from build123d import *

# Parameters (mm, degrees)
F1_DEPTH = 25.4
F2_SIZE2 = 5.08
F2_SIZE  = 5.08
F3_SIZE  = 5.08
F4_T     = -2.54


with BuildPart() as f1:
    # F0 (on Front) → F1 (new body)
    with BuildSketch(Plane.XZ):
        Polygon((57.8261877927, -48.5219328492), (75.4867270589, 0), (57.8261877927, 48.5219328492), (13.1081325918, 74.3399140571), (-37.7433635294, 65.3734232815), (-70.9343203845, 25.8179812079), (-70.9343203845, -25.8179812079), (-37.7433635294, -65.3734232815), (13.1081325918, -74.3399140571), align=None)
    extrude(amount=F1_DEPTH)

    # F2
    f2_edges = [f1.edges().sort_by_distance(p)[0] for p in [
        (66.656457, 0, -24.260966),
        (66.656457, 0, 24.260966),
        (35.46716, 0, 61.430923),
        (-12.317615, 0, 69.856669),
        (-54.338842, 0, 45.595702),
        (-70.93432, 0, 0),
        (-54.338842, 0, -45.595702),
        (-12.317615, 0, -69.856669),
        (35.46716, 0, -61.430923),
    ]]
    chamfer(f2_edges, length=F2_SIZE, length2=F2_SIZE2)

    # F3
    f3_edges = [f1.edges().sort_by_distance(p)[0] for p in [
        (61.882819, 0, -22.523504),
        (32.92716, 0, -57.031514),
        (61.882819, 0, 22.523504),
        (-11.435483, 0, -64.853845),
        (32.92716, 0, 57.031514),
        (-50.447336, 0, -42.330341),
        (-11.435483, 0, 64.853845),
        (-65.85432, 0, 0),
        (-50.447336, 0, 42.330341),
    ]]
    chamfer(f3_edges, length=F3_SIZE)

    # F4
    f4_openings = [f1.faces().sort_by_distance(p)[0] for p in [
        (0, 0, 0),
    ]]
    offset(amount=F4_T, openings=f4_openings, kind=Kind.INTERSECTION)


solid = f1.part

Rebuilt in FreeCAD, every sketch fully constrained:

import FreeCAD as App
import Part
import Sketcher
from FreeCAD import Vector
Q = App.Units.Quantity


def edges_at(feature, points):
    """Names of the edges that pass closest to the given points."""
    edges = feature.Shape.Edges
    near = lambda p: min(range(len(edges)), key=lambda i: edges[i].distToShape(Part.Vertex(*p))[0])
    return sorted({f"Edge{near(p) + 1}" for p in points})


def faces_at(feature, points):
    """Names of the faces that lie closest to the given points."""
    faces = feature.Shape.Faces
    near = lambda p: min(range(len(faces)), key=lambda i: faces[i].distToShape(Part.Vertex(*p))[0])
    return sorted({f"Face{near(p) + 1}" for p in points})

doc = App.newDocument("Part")
params = doc.addObject("Spreadsheet::Sheet", "Params")
for row, (alias, value) in enumerate([
    ("pad1_length", "1 in"),
    ("chamfer_size", "0.2 in"),
    ("chamfer_size2", "0.2 in"),
    ("chamfer2_size", "0.2 in"),
    ("thickness_wall", "0.1 in"),
], start=1):
    params.set(f"A{row}", alias)
    params.set(f"B{row}", "=" + value)
    params.setAlias(f"B{row}", alias)

body = doc.addObject("PartDesign::Body", "Body")

# Sketch on XZ plane
sketch1 = body.newObject("Sketcher::SketchObject", "Sketch")
sketch1.AttachmentSupport = (doc.getObject("XZ_Plane"), [""])
sketch1.MapMode = "FlatFace"
sketch1.addGeometry([
    Part.LineSegment(Vector(58, -49, 0), Vector(75, 0, 0)),  # 0
    Part.LineSegment(Vector(75, 0, 0), Vector(58, 49, 0)),  # 1
    Part.LineSegment(Vector(58, 49, 0), Vector(13, 74, 0)),  # 2
    Part.LineSegment(Vector(13, 74, 0), Vector(-38, 65, 0)),  # 3
    Part.LineSegment(Vector(-38, 65, 0), Vector(-71, 26, 0)),  # 4
    Part.LineSegment(Vector(-71, 26, 0), Vector(-71, -26, 0)),  # 5
    Part.LineSegment(Vector(-71, -26, 0), Vector(-38, -65, 0)),  # 6
    Part.LineSegment(Vector(-38, -65, 0), Vector(13, -74, 0)),  # 7
    Part.LineSegment(Vector(13, -74, 0), Vector(58, -49, 0)),  # 8
], False)
sketch1.addConstraint([
    Sketcher.Constraint("Coincident", 0, 2, 1, 1),
    Sketcher.Constraint("Coincident", 1, 2, 2, 1),
    Sketcher.Constraint("Coincident", 2, 2, 3, 1),
    Sketcher.Constraint("Coincident", 3, 2, 4, 1),
    Sketcher.Constraint("Coincident", 4, 2, 5, 1),
    Sketcher.Constraint("Coincident", 5, 2, 6, 1),
    Sketcher.Constraint("Coincident", 6, 2, 7, 1),
    Sketcher.Constraint("Coincident", 7, 2, 8, 1),
    Sketcher.Constraint("Coincident", 8, 2, 0, 1),
    Sketcher.Constraint("Vertical", 5),
    Sketcher.Constraint("Symmetric", 3, 2, 6, 2, -1),
    Sketcher.Constraint("Symmetric", 2, 2, 7, 2, -1),
    Sketcher.Constraint("Symmetric", 1, 2, 8, 2, -1),
    Sketcher.Constraint("PointOnObject", 0, 2, -1),
    Sketcher.Constraint("Equal", 1, 2),
    Sketcher.Constraint("Equal", 2, 3),
    Sketcher.Constraint("Equal", 3, 4),
    Sketcher.Constraint("Equal", 4, 6),
    Sketcher.Constraint("Angle", 0, Q("70 deg")),
    Sketcher.Constraint("Angle", 2, Q("150 deg")),
    Sketcher.Constraint("Angle", 3, Q("-170 deg")),
    Sketcher.Constraint("Angle", 4, Q("-130 deg")),
    Sketcher.Constraint("DistanceY", 5, 2, 5, 1, Q("51.635962 mm")),
    Sketcher.Constraint("DistanceX", 4, 2, -1, 1, Q("70.93432 mm")),
])
pad1 = body.newObject("PartDesign::Pad", "Pad")
pad1.Profile = sketch1
pad1.setExpression("Length", "Params.pad1_length")
doc.recompute()

chamfer = body.newObject("PartDesign::Chamfer", "Chamfer")
chamfer.Base = (pad1, edges_at(pad1, [
    (66.656, 0, -24.261),
    (66.656, 0, 24.261),
    (35.467, 0, 61.431),
    (-12.318, 0, 69.857),
    (-54.339, 0, 45.596),
    (-70.934, 0, 0),
    (-54.339, 0, -45.596),
    (-12.318, 0, -69.857),
    (35.467, 0, -61.431),
]))
chamfer.ChamferType = "Two distances"
chamfer.setExpression("Size", "Params.chamfer_size")
chamfer.setExpression("Size2", "Params.chamfer_size2")
doc.recompute()

chamfer2 = body.newObject("PartDesign::Chamfer", "Chamfer001")
chamfer2.Base = (chamfer, edges_at(chamfer, [
    (61.883, 0, -22.524),
    (32.927, 0, -57.032),
    (61.883, 0, 22.524),
    (-11.435, 0, -64.854),
    (32.927, 0, 57.032),
    (-50.447, 0, -42.33),
    (-11.435, 0, 64.854),
    (-65.854, 0, 0),
    (-50.447, 0, 42.33),
]))
chamfer2.setExpression("Size", "Params.chamfer2_size")
doc.recompute()

thickness = body.newObject("PartDesign::Thickness", "Thickness")
thickness.Base = (chamfer2, faces_at(chamfer2, [(1.95, 0, 0)]))
thickness.setExpression("Value", "Params.thickness_wall")
thickness.Reversed = True
thickness.Join = "Intersection"

doc.recompute()
